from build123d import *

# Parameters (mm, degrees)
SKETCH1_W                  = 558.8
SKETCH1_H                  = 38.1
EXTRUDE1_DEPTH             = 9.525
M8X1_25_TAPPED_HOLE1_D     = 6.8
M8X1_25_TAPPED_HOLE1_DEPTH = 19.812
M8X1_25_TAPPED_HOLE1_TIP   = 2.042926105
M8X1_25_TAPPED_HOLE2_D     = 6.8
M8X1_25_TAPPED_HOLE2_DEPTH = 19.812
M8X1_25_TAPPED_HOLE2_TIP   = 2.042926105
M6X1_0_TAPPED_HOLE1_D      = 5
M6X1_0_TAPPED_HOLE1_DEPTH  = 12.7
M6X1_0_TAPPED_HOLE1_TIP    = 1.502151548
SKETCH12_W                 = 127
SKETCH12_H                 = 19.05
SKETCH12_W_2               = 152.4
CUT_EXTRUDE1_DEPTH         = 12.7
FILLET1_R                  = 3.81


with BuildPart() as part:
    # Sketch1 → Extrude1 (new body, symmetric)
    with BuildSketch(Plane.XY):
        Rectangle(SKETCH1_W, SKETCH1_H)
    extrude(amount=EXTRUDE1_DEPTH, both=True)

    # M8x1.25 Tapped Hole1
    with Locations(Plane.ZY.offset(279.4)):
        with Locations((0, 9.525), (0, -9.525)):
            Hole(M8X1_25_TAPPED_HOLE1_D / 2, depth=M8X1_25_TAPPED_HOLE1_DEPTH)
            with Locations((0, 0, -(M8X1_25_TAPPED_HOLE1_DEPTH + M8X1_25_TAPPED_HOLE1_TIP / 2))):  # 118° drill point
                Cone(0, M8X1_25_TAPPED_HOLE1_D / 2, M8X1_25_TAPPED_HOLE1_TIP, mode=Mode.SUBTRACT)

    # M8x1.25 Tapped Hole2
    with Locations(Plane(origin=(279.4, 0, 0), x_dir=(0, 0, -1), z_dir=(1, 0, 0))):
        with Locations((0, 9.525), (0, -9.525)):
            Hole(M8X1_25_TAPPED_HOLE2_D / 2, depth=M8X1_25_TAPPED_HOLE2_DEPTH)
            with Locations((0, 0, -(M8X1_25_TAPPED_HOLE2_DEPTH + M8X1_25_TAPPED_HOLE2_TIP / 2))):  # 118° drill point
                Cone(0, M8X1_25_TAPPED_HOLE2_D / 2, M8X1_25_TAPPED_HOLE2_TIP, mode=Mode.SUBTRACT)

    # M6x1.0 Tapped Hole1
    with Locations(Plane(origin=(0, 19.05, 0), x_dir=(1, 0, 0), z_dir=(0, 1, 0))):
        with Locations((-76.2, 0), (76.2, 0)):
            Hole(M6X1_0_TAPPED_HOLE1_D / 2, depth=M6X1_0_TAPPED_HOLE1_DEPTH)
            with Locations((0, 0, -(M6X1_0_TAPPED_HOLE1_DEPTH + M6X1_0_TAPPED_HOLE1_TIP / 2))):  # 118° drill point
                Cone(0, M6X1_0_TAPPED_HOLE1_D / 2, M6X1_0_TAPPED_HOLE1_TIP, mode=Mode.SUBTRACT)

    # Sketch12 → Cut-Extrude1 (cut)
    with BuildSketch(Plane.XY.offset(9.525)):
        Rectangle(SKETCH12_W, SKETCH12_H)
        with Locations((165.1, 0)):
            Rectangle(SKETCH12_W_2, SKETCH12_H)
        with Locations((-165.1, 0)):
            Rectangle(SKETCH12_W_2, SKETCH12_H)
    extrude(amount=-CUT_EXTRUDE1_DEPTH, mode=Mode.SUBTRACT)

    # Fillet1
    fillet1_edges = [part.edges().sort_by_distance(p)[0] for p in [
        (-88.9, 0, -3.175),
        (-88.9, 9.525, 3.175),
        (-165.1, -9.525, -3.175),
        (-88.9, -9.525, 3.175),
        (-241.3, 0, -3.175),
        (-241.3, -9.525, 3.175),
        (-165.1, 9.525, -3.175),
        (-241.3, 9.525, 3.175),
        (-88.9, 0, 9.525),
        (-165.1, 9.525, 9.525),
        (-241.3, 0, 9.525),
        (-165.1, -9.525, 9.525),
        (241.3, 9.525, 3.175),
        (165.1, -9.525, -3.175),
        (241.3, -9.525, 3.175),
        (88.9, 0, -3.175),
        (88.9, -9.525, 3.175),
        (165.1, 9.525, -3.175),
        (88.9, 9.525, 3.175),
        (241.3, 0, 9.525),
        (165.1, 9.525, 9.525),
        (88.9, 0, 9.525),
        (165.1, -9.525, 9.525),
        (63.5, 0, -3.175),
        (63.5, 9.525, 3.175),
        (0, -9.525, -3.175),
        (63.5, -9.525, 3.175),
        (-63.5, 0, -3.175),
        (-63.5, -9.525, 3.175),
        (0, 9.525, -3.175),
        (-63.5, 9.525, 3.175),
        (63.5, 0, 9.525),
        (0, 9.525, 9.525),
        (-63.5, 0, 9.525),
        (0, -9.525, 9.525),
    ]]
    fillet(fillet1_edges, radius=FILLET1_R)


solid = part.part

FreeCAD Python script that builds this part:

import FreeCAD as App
import Part
import Sketcher

V = App.Vector
Q = App.Units.Quantity


def edges_at(feature, points):
    """Names of the edges that pass closest to the given points."""
    edges = feature.Shape.Edges
    near = lambda p: min(range(len(edges)), key=lambda i: edges[i].distToShape(Part.Vertex(*p))[0])
    return sorted({f"Edge{near(p) + 1}" for p in points})


def add_polygon(sketch, points):
    """Adds a closed chain of lines whose ends are joined by coincident constraints."""
    first, n = sketch.GeometryCount, len(points)
    for a, b in zip(points, points[1:] + points[:1]):
        sketch.addGeometry(Part.LineSegment(App.Vector(*a, 0), App.Vector(*b, 0)), False)
    for i in range(n):
        sketch.addConstraint(Sketcher.Constraint("Coincident", first + i, 2, first + (i + 1) % n, 1))

doc = App.newDocument("Part")
body = doc.addObject("PartDesign::Body", "Body")

sketch1 = body.newObject("Sketcher::SketchObject", "Sketch")
sketch1.AttachmentSupport = (doc.getObject("XY_Plane"), [""])
sketch1.MapMode = "FlatFace"
add_polygon(sketch1, [(-279, 19), (-279, -19), (279, -19), (279, 19)])
sketch1.addConstraint([
    Sketcher.Constraint("Vertical", 0),
    Sketcher.Constraint("Horizontal", 1),
    Sketcher.Constraint("Vertical", 2),
    Sketcher.Constraint("Horizontal", 3),
    Sketcher.Constraint("Symmetric", 0, 2, 2, 2, -1, 1),
    Sketcher.Constraint("DistanceX", 1, 1, 1, 2, Q("22 in")),
    Sketcher.Constraint("DistanceY", 0, 2, 0, 1, Q("1.5 in")),
])
pad1 = body.newObject("PartDesign::Pad", "Pad")
pad1.Profile = sketch1
pad1.Length = Q("0.75 in")
pad1.Midplane = True

sketch2 = body.newObject("Sketcher::SketchObject", "Sketch001")
sketch2.AttachmentSupport = (doc.getObject("YZ_Plane"), [""])
sketch2.MapMode = "FlatFace"
sketch2.AttachmentOffset = App.Placement(V(0, 0, -11 * 25.4), App.Rotation())
sketch2.addGeometry([
    Part.Circle(V(9.5, 0, 0), V(0, 0, 1), 3.4),
    Part.Circle(V(-9.5, 0, 0), V(0, 0, 1), 3.4),
], False)
sketch2.addConstraint([
    Sketcher.Constraint("Equal", 0, 1),
    Sketcher.Constraint("Symmetric", 0, 3, 1, 3, -1, 1),
    Sketcher.Constraint("PointOnObject", 0, 3, -1),
    Sketcher.Constraint("Diameter", 0, Q("6.8 mm")),
    Sketcher.Constraint("DistanceX", 1, 3, 0, 3, Q("0.75 in")),
])
doc.recompute()
hole = body.newObject("PartDesign::Hole", "Hole")
hole.Profile = sketch2
hole.ThreadType = "None"
hole.Diameter = 6.8
hole.DepthType = "Dimension"
hole.Depth = Q("0.78 in")
hole.DrillPoint = "Angled"
hole.DrillPointAngle = 118
hole.Reversed = True

sketch3 = body.newObject("Sketcher::SketchObject", "Sketch002")
sketch3.AttachmentSupport = (doc.getObject("YZ_Plane"), [""])
sketch3.MapMode = "FlatFace"
sketch3.AttachmentOffset = App.Placement(V(0, 0, 11 * 25.4), App.Rotation())
sketch3.addGeometry([
    Part.Circle(V(9.5, 0, 0), V(0, 0, 1), 3.4),
    Part.Circle(V(-9.5, 0, 0), V(0, 0, 1), 3.4),
], False)
sketch3.addConstraint([
    Sketcher.Constraint("Equal", 0, 1),
    Sketcher.Constraint("Symmetric", 0, 3, 1, 3, -1, 1),
    Sketcher.Constraint("PointOnObject", 0, 3, -1),
    Sketcher.Constraint("Diameter", 0, Q("6.8 mm")),
    Sketcher.Constraint("DistanceX", 1, 3, 0, 3, Q("0.75 in")),
])
doc.recompute()
hole2 = body.newObject("PartDesign::Hole", "Hole001")
hole2.Profile = sketch3
hole2.ThreadType = "None"
hole2.Diameter = 6.8
hole2.DepthType = "Dimension"
hole2.Depth = Q("0.78 in")
hole2.DrillPoint = "Angled"
hole2.DrillPointAngle = 118

sketch4 = body.newObject("Sketcher::SketchObject", "Sketch003")
sketch4.AttachmentSupport = (doc.getObject("XZ_Plane"), [""])
sketch4.MapMode = "FlatFace"
sketch4.AttachmentOffset = App.Placement(V(0, 0, -0.75 * 25.4), App.Rotation())
sketch4.addGeometry([
    Part.Circle(V(-76.2, 0, 0), V(0, 0, 1), 2.5),
    Part.Circle(V(76.2, 0, 0), V(0, 0, 1), 2.5),
], False)
sketch4.addConstraint([
    Sketcher.Constraint("Equal", 0, 1),
    Sketcher.Constraint("Symmetric", 0, 3, 1, 3, -1, 1),
    Sketcher.Constraint("PointOnObject", 0, 3, -1),
    Sketcher.Constraint("DistanceX", 0, 3, -1, 1, Q("3 in")),
    Sketcher.Constraint("Diameter", 0, Q("5 mm")),
])
doc.recompute()
hole3 = body.newObject("PartDesign::Hole", "Hole002")
hole3.Profile = sketch4
hole3.ThreadType = "None"
hole3.Diameter = 5
hole3.DepthType = "Dimension"
hole3.Depth = Q("0.5 in")
hole3.DrillPoint = "Angled"
hole3.DrillPointAngle = 118
hole3.Reversed = True

sketch5 = body.newObject("Sketcher::SketchObject", "Sketch004")
sketch5.AttachmentSupport = (doc.getObject("XY_Plane"), [""])
sketch5.MapMode = "FlatFace"
sketch5.AttachmentOffset = App.Placement(V(0, 0, 0.375 * 25.4), App.Rotation())
add_polygon(sketch5, [(-64, 10), (-64, -10), (64, -10), (64, 10)])
add_polygon(sketch5, [(89, 10), (89, -10), (241, -10), (241, 10)])
add_polygon(sketch5, [(-241, 10), (-241, -10), (-89, -10), (-89, 10)])
sketch5.addConstraint([
    Sketcher.Constraint("Vertical", 0),
    Sketcher.Constraint("Horizontal", 1),
    Sketcher.Constraint("Vertical", 2),
    Sketcher.Constraint("Horizontal", 3),
    Sketcher.Constraint("Vertical", 4),
    Sketcher.Constraint("Horizontal", 5),
    Sketcher.Constraint("Vertical", 6),
    Sketcher.Constraint("Horizontal", 7),
    Sketcher.Constraint("Vertical", 8),
    Sketcher.Constraint("Horizontal", 9),
    Sketcher.Constraint("Vertical", 10),
    Sketcher.Constraint("Horizontal", 11),
    Sketcher.Constraint("Symmetric", 0, 2, 2, 2, -1, 1),
    Sketcher.Constraint("Symmetric", 6, 2, 8, 2, -1, 1),
    Sketcher.Constraint("Symmetric", 4, 2, 10, 2, -1, 1),
    Sketcher.Constraint("Horizontal", 1, 2, 4, 2),
    Sketcher.Constraint("Horizontal", 3, 2, 6, 2),
    Sketcher.Constraint("DistanceX", 1, 1, 1, 2, Q("5 in")),
    Sketcher.Constraint("DistanceX", 5, 1, 5, 2, Q("6 in")),
    Sketcher.Constraint("DistanceX", 1, 2, 4, 2, Q("1 in")),
    Sketcher.Constraint("DistanceY", 0, 2, 0, 1, Q("0.75 in")),
])
pocket1 = body.newObject("PartDesign::Pocket", "Pocket")
pocket1.Profile = sketch5
pocket1.Length = Q("0.5 in")
doc.recompute()

fillet = body.newObject("PartDesign::Fillet", "Fillet")
fillet.Base = (pocket1, edges_at(pocket1, [
    (-88.9, 0, -3.175),
    (-88.9, 9.525, 3.175),
    (-165.1, -9.525, -3.175),
    (-88.9, -9.525, 3.175),
    (-241.3, 0, -3.175),
    (-241.3, -9.525, 3.175),
    (-165.1, 9.525, -3.175),
    (-241.3, 9.525, 3.175),
    (-88.9, 0, 9.525),
    (-165.1, 9.525, 9.525),
    (-241.3, 0, 9.525),
    (-165.1, -9.525, 9.525),
    (241.3, 9.525, 3.175),
    (165.1, -9.525, -3.175),
    (241.3, -9.525, 3.175),
    (88.9, 0, -3.175),
    (88.9, -9.525, 3.175),
    (165.1, 9.525, -3.175),
    (88.9, 9.525, 3.175),
    (241.3, 0, 9.525),
    (165.1, 9.525, 9.525),
    (88.9, 0, 9.525),
    (165.1, -9.525, 9.525),
    (63.5, 0, -3.175),
    (63.5, 9.525, 3.175),
    (0, -9.525, -3.175),
    (63.5, -9.525, 3.175),
    (-63.5, 0, -3.175),
    (-63.5, -9.525, 3.175),
    (0, 9.525, -3.175),
    (-63.5, 9.525, 3.175),
    (63.5, 0, 9.525),
    (0, 9.525, 9.525),
    (-63.5, 0, 9.525),
    (0, -9.525, 9.525),
]))
fillet.Radius = Q("0.15 in")

doc.recompute()
